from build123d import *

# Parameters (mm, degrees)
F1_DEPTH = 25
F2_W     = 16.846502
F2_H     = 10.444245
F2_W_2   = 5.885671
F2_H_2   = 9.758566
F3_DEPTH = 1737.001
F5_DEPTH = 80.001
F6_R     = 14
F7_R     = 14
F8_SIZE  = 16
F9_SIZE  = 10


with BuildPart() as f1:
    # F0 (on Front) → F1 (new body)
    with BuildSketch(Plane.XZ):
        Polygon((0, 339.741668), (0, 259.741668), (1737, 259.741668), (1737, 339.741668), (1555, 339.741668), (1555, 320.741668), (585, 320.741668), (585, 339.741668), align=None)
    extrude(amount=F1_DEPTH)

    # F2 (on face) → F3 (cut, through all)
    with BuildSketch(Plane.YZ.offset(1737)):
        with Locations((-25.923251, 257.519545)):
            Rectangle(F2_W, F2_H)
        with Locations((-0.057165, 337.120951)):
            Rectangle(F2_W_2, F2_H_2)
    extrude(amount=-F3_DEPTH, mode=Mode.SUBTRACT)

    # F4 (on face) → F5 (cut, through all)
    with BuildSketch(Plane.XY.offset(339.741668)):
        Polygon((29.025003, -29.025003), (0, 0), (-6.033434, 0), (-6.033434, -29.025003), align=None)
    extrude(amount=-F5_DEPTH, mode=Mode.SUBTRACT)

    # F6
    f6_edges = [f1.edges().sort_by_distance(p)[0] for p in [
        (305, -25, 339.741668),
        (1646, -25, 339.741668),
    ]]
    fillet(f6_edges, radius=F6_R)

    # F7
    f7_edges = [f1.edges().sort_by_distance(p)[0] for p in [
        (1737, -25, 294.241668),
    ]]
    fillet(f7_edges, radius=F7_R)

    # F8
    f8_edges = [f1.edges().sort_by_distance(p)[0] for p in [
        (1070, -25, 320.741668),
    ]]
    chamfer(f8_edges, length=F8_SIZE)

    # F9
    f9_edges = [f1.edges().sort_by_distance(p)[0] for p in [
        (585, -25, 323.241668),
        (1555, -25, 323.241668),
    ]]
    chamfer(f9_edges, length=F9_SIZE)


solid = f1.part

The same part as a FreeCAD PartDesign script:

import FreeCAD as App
import Part
import Sketcher
Q = App.Units.Quantity


def edges_at(feature, points):
    """Names of the edges that pass closest to the given points."""
    edges = feature.Shape.Edges
    near = lambda p: min(range(len(edges)), key=lambda i: edges[i].distToShape(Part.Vertex(*p))[0])
    return sorted({f"Edge{near(p) + 1}" for p in points})


def add_polygon(sketch, points):
    """Adds a closed chain of lines whose ends are joined by coincident constraints."""
    first, n = sketch.GeometryCount, len(points)
    for a, b in zip(points, points[1:] + points[:1]):
        sketch.addGeometry(Part.LineSegment(App.Vector(*a, 0), App.Vector(*b, 0)), False)
    for i in range(n):
        sketch.addConstraint(Sketcher.Constraint("Coincident", first + i, 2, first + (i + 1) % n, 1))

doc = App.newDocument("Part")
body = doc.addObject("PartDesign::Body", "Body")

sketch1 = body.newObject("Sketcher::SketchObject", "Sketch")
sketch1.AttachmentSupport = (doc.getObject("XZ_Plane"), [""])
sketch1.MapMode = "FlatFace"
add_polygon(sketch1, [(0, 340), (0, 260), (1737, 260), (1737, 340), (1555, 340), (1555, 321), (585, 321), (585, 340)])
sketch1.addConstraint([
    Sketcher.Constraint("Vertical", 0),
    Sketcher.Constraint("Horizontal", 1),
    Sketcher.Constraint("Vertical", 2),
    Sketcher.Constraint("Horizontal", 3),
    Sketcher.Constraint("Vertical", 4),
    Sketcher.Constraint("Horizontal", 5),
    Sketcher.Constraint("Vertical", 6),
    Sketcher.Constraint("Horizontal", 7),
    Sketcher.Constraint("PointOnObject", 0, 2, -2),
    Sketcher.Constraint("Horizontal", 3, 2, 6, 2),
    Sketcher.Constraint("DistanceX", 1, 1, 1, 2, 1737.0),
    Sketcher.Constraint("DistanceX", 3, 2, 3, 1, 182.0),
    Sketcher.Constraint("DistanceX", 5, 2, 5, 1, 970.0),
    Sketcher.Constraint("DistanceY", 0, 2, 0, 1, 80.0),
    Sketcher.Constraint("DistanceY", 4, 2, 4, 1, 19.0),
    Sketcher.Constraint("DistanceY", -1, 1, 0, 2, 259.741668),
])
pad1 = body.newObject("PartDesign::Pad", "Pad")
pad1.Profile = sketch1
pad1.Length = 25

sketch2 = body.newObject("Sketcher::SketchObject", "Sketch001")
sketch2.AttachmentSupport = (doc.getObject("YZ_Plane"), [""])
sketch2.MapMode = "FlatFace"
sketch2.AttachmentOffset = App.Placement(App.Vector(0, 0, 1737), App.Rotation())
add_polygon(sketch2, [(-34, 263), (-34, 252), (-18, 252), (-18, 263)])
add_polygon(sketch2, [(-3, 342), (-3, 332), (3, 332), (3, 342)])
sketch2.addConstraint([
    Sketcher.Constraint("Vertical", 0),
    Sketcher.Constraint("Horizontal", 1),
    Sketcher.Constraint("Vertical", 2),
    Sketcher.Constraint("Horizontal", 3),
    Sketcher.Constraint("Vertical", 4),
    Sketcher.Constraint("Horizontal", 5),
    Sketcher.Constraint("Vertical", 6),
    Sketcher.Constraint("Horizontal", 7),
    Sketcher.Constraint("DistanceX", 4, 2, -1, 1, 3.000001),
    Sketcher.Constraint("DistanceX", 1, 2, -1, 1, 17.5),
    Sketcher.Constraint("DistanceY", 2, 2, 4, 2, 69.5),
    Sketcher.Constraint("DistanceX", 5, 1, 5, 2, 5.885671),
    Sketcher.Constraint("DistanceX", 3, 2, 4, 2, 31.346502),
    Sketcher.Constraint("DistanceY", 0, 2, 0, 1, 10.444245),
    Sketcher.Constraint("DistanceY", 4, 2, 4, 1, 9.758566),
    Sketcher.Constraint("DistanceY", -1, 1, 4, 2, 332.241668),
])
pocket1 = body.newObject("PartDesign::Pocket", "Pocket")
pocket1.Profile = sketch2
pocket1.Type = "ThroughAll"

sketch3 = body.newObject("Sketcher::SketchObject", "Sketch002")
sketch3.AttachmentSupport = (doc.getObject("XY_Plane"), [""])
sketch3.MapMode = "FlatFace"
sketch3.AttachmentOffset = App.Placement(App.Vector(0, 0, 339.741668), App.Rotation())
add_polygon(sketch3, [(29, -29), (0, 0), (-6, 0), (-6, -29)])
sketch3.addConstraint([
    Sketcher.Constraint("Horizontal", 1),
    Sketcher.Constraint("Vertical", 2),
    Sketcher.Constraint("Horizontal", 3),
    Sketcher.Constraint("Coincident", 0, 2, -1, 1),
    Sketcher.Constraint("Angle", 0, Q("135 deg")),
    Sketcher.Constraint("DistanceX", 1, 2, 1, 1, 6.033434),
    Sketcher.Constraint("DistanceX", 3, 1, 3, 2, 35.058437),
])
pocket2 = body.newObject("PartDesign::Pocket", "Pocket001")
pocket2.Profile = sketch3
pocket2.Type = "ThroughAll"
doc.recompute()

fillet = body.newObject("PartDesign::Fillet", "Fillet")
fillet.Base = (pocket2, edges_at(pocket2, [(305, -25, 339.742), (1646, -25, 339.742)]))
fillet.Radius = 14
doc.recompute()

fillet2 = body.newObject("PartDesign::Fillet", "Fillet001")
fillet2.Base = (fillet, edges_at(fillet, [(1737, -25, 294.242)]))
fillet2.Radius = 14
doc.recompute()

chamfer = body.newObject("PartDesign::Chamfer", "Chamfer")
chamfer.Base = (fillet2, edges_at(fillet2, [(1070, -25, 320.742)]))
chamfer.Size = 16
doc.recompute()

chamfer2 = body.newObject("PartDesign::Chamfer", "Chamfer001")
chamfer2.Base = (chamfer, edges_at(chamfer, [(585, -25, 315.242), (1555, -25, 315.242)]))
chamfer2.Size = 10

doc.recompute()
